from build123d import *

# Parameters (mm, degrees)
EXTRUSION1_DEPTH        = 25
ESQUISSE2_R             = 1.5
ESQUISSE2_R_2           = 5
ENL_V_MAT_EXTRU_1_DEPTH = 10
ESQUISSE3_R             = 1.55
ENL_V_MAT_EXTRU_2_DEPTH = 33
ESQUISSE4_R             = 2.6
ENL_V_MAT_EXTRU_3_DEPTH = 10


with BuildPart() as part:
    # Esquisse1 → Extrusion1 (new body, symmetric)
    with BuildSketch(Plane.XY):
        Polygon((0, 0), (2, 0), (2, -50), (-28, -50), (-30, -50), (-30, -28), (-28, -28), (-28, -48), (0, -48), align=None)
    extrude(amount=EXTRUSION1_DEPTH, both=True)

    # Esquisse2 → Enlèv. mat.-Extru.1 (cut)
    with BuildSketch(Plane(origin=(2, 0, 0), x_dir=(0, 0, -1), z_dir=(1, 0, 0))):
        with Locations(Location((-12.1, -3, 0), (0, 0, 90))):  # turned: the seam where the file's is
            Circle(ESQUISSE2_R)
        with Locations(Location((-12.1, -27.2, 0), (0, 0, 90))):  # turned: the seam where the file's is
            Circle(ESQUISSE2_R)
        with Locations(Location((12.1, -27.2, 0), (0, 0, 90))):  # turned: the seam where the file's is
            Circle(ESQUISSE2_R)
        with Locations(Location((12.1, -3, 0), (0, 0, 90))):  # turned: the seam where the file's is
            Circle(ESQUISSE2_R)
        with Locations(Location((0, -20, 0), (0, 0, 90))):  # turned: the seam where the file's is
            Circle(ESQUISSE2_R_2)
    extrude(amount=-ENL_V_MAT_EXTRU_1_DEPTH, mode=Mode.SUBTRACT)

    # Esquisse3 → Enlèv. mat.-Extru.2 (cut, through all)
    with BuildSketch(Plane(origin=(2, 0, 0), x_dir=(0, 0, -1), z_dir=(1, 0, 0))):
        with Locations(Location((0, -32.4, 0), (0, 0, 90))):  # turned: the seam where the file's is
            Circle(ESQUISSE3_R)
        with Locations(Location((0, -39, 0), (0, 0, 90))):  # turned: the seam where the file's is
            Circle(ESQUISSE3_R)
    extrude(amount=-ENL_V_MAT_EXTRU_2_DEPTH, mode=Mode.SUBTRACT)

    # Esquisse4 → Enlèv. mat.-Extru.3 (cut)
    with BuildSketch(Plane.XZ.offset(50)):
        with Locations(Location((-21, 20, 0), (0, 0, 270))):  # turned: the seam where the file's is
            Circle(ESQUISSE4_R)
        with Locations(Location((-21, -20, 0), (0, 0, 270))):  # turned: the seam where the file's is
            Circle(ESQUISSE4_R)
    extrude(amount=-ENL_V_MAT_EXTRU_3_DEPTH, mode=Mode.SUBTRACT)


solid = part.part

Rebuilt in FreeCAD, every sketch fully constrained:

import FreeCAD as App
import Part
import Sketcher
from FreeCAD import Vector
Q = App.Units.Quantity


def add_polygon(sketch, points):
    """Adds a closed chain of lines whose ends are joined by coincident constraints."""
    first, n = sketch.GeometryCount, len(points)
    for a, b in zip(points, points[1:] + points[:1]):
        sketch.addGeometry(Part.LineSegment(App.Vector(*a, 0), App.Vector(*b, 0)), False)
    for i in range(n):
        sketch.addConstraint(Sketcher.Constraint("Coincident", first + i, 2, first + (i + 1) % n, 1))

doc = App.newDocument("Part")
body = doc.addObject("PartDesign::Body", "Body")

# Sketch on XY plane
sketch1 = body.newObject("Sketcher::SketchObject", "Sketch")
sketch1.AttachmentSupport = (doc.getObject("XY_Plane"), [""])
sketch1.MapMode = "FlatFace"
add_polygon(sketch1, [(2, 0), (0, 0), (0, -48), (-28, -48), (-28, -28), (-30, -28), (-30, -50), (2, -50)])  # lines 0-7
sketch1.addConstraint(Sketcher.Constraint("Horizontal", 0))
sketch1.addConstraint(Sketcher.Constraint("Vertical", 1))
sketch1.addConstraint(Sketcher.Constraint("Horizontal", 2))
sketch1.addConstraint(Sketcher.Constraint("Vertical", 3))
sketch1.addConstraint(Sketcher.Constraint("Horizontal", 4))
sketch1.addConstraint(Sketcher.Constraint("Vertical", 5))
sketch1.addConstraint(Sketcher.Constraint("Horizontal", 6))
sketch1.addConstraint(Sketcher.Constraint("Vertical", 7))
sketch1.addConstraint(Sketcher.Constraint("Coincident", 0, 2, -1, 1))
sketch1.addConstraint(Sketcher.Constraint("Equal", 0, 4))
sketch1.addConstraint(Sketcher.Constraint("DistanceX", 0, 2, 0, 1, Q("2 mm")))
sketch1.addConstraint(Sketcher.Constraint("DistanceX", 2, 2, 2, 1, Q("28 mm")))
sketch1.addConstraint(Sketcher.Constraint("DistanceY", 1, 2, 1, 1, Q("48 mm")))
sketch1.addConstraint(Sketcher.Constraint("DistanceY", 3, 1, 3, 2, Q("20 mm")))
sketch1.addConstraint(Sketcher.Constraint("DistanceY", 5, 2, 5, 1, Q("22 mm")))
pad1 = body.newObject("PartDesign::Pad", "Pad")
pad1.Profile = sketch1
pad1.Length = 50
pad1.Midplane = True

# Sketch on YZ plane
sketch2 = body.newObject("Sketcher::SketchObject", "Sketch001")
sketch2.AttachmentSupport = (doc.getObject("YZ_Plane"), [""])
sketch2.MapMode = "FlatFace"
sketch2.AttachmentOffset = App.Placement(Vector(0, 0, 2), App.Rotation())
sketch2.addGeometry(Part.Circle(Vector(-3, 12.1, 0), Vector(0, 0, 1), 1.5), False)
sketch2.addGeometry(Part.Circle(Vector(-27.2, 12.1, 0), Vector(0, 0, 1), 1.5), False)
sketch2.addGeometry(Part.Circle(Vector(-27.2, -12.1, 0), Vector(0, 0, 1), 1.5), False)
sketch2.addGeometry(Part.Circle(Vector(-3, -12.1, 0), Vector(0, 0, 1), 1.5), False)
sketch2.addGeometry(Part.Circle(Vector(-20, 0, 0), Vector(0, 0, 1), 5), False)
sketch2.addConstraint(Sketcher.Constraint("Equal", 0, 1))
sketch2.addConstraint(Sketcher.Constraint("Equal", 1, 2))
sketch2.addConstraint(Sketcher.Constraint("Equal", 2, 3))
sketch2.addConstraint(Sketcher.Constraint("Symmetric", 1, 3, 2, 3, -1))
sketch2.addConstraint(Sketcher.Constraint("Symmetric", 0, 3, 3, 3, -1))
sketch2.addConstraint(Sketcher.Constraint("PointOnObject", 4, 3, -1))
sketch2.addConstraint(Sketcher.Constraint("Horizontal", 0, 3, 1, 3))
sketch2.addConstraint(Sketcher.Constraint("Diameter", 0, Q("3 mm")))
sketch2.addConstraint(Sketcher.Constraint("Diameter", 4, Q("10 mm")))
sketch2.addConstraint(Sketcher.Constraint("DistanceX", 0, 3, -1, 1, Q("3 mm")))
sketch2.addConstraint(Sketcher.Constraint("DistanceX", 4, 3, -1, 1, Q("20 mm")))
sketch2.addConstraint(Sketcher.Constraint("DistanceY", -1, 1, 0, 3, Q("12.1 mm")))
sketch2.addConstraint(Sketcher.Constraint("DistanceX", 1, 3, -1, 1, Q("27.2 mm")))
pocket1 = body.newObject("PartDesign::Pocket", "Pocket")
pocket1.Profile = sketch2
pocket1.Length = 10

# Sketch on YZ plane
sketch3 = body.newObject("Sketcher::SketchObject", "Sketch002")
sketch3.AttachmentSupport = (doc.getObject("YZ_Plane"), [""])
sketch3.MapMode = "FlatFace"
sketch3.AttachmentOffset = App.Placement(Vector(0, 0, 2), App.Rotation())
sketch3.addGeometry(Part.Circle(Vector(-32.4, 0, 0), Vector(0, 0, 1), 1.6), False)
sketch3.addGeometry(Part.Circle(Vector(-39, 0, 0), Vector(0, 0, 1), 1.6), False)
sketch3.addConstraint(Sketcher.Constraint("Equal", 0, 1))
sketch3.addConstraint(Sketcher.Constraint("PointOnObject", 0, 3, -1))
sketch3.addConstraint(Sketcher.Constraint("PointOnObject", 1, 3, -1))
sketch3.addConstraint(Sketcher.Constraint("Diameter", 0, Q("3.1 mm")))
sketch3.addConstraint(Sketcher.Constraint("DistanceX", 1, 3, -1, 1, Q("39 mm")))
sketch3.addConstraint(Sketcher.Constraint("DistanceX", 0, 3, -1, 1, Q("32.4 mm")))
pocket2 = body.newObject("PartDesign::Pocket", "Pocket001")
pocket2.Profile = sketch3
pocket2.Type = "ThroughAll"

# Sketch on XZ plane
sketch4 = body.newObject("Sketcher::SketchObject", "Sketch003")
sketch4.AttachmentSupport = (doc.getObject("XZ_Plane"), [""])
sketch4.MapMode = "FlatFace"
sketch4.AttachmentOffset = App.Placement(Vector(0, 0, 50), App.Rotation())
sketch4.addGeometry(Part.Circle(Vector(-21, 20, 0), Vector(0, 0, 1), 2.6), False)
sketch4.addGeometry(Part.Circle(Vector(-21, -20, 0), Vector(0, 0, 1), 2.6), False)
sketch4.addConstraint(Sketcher.Constraint("Equal", 0, 1))
sketch4.addConstraint(Sketcher.Constraint("Symmetric", 0, 3, 1, 3, -1))
sketch4.addConstraint(Sketcher.Constraint("Diameter", 0, Q("5.2 mm")))
sketch4.addConstraint(Sketcher.Constraint("DistanceX", 0, 3, -1, 1, Q("21 mm")))
sketch4.addConstraint(Sketcher.Constraint("DistanceY", -1, 1, 0, 3, Q("20 mm")))
pocket3 = body.newObject("PartDesign::Pocket", "Pocket002")
pocket3.Profile = sketch4
pocket3.Length = 10

doc.recompute()
